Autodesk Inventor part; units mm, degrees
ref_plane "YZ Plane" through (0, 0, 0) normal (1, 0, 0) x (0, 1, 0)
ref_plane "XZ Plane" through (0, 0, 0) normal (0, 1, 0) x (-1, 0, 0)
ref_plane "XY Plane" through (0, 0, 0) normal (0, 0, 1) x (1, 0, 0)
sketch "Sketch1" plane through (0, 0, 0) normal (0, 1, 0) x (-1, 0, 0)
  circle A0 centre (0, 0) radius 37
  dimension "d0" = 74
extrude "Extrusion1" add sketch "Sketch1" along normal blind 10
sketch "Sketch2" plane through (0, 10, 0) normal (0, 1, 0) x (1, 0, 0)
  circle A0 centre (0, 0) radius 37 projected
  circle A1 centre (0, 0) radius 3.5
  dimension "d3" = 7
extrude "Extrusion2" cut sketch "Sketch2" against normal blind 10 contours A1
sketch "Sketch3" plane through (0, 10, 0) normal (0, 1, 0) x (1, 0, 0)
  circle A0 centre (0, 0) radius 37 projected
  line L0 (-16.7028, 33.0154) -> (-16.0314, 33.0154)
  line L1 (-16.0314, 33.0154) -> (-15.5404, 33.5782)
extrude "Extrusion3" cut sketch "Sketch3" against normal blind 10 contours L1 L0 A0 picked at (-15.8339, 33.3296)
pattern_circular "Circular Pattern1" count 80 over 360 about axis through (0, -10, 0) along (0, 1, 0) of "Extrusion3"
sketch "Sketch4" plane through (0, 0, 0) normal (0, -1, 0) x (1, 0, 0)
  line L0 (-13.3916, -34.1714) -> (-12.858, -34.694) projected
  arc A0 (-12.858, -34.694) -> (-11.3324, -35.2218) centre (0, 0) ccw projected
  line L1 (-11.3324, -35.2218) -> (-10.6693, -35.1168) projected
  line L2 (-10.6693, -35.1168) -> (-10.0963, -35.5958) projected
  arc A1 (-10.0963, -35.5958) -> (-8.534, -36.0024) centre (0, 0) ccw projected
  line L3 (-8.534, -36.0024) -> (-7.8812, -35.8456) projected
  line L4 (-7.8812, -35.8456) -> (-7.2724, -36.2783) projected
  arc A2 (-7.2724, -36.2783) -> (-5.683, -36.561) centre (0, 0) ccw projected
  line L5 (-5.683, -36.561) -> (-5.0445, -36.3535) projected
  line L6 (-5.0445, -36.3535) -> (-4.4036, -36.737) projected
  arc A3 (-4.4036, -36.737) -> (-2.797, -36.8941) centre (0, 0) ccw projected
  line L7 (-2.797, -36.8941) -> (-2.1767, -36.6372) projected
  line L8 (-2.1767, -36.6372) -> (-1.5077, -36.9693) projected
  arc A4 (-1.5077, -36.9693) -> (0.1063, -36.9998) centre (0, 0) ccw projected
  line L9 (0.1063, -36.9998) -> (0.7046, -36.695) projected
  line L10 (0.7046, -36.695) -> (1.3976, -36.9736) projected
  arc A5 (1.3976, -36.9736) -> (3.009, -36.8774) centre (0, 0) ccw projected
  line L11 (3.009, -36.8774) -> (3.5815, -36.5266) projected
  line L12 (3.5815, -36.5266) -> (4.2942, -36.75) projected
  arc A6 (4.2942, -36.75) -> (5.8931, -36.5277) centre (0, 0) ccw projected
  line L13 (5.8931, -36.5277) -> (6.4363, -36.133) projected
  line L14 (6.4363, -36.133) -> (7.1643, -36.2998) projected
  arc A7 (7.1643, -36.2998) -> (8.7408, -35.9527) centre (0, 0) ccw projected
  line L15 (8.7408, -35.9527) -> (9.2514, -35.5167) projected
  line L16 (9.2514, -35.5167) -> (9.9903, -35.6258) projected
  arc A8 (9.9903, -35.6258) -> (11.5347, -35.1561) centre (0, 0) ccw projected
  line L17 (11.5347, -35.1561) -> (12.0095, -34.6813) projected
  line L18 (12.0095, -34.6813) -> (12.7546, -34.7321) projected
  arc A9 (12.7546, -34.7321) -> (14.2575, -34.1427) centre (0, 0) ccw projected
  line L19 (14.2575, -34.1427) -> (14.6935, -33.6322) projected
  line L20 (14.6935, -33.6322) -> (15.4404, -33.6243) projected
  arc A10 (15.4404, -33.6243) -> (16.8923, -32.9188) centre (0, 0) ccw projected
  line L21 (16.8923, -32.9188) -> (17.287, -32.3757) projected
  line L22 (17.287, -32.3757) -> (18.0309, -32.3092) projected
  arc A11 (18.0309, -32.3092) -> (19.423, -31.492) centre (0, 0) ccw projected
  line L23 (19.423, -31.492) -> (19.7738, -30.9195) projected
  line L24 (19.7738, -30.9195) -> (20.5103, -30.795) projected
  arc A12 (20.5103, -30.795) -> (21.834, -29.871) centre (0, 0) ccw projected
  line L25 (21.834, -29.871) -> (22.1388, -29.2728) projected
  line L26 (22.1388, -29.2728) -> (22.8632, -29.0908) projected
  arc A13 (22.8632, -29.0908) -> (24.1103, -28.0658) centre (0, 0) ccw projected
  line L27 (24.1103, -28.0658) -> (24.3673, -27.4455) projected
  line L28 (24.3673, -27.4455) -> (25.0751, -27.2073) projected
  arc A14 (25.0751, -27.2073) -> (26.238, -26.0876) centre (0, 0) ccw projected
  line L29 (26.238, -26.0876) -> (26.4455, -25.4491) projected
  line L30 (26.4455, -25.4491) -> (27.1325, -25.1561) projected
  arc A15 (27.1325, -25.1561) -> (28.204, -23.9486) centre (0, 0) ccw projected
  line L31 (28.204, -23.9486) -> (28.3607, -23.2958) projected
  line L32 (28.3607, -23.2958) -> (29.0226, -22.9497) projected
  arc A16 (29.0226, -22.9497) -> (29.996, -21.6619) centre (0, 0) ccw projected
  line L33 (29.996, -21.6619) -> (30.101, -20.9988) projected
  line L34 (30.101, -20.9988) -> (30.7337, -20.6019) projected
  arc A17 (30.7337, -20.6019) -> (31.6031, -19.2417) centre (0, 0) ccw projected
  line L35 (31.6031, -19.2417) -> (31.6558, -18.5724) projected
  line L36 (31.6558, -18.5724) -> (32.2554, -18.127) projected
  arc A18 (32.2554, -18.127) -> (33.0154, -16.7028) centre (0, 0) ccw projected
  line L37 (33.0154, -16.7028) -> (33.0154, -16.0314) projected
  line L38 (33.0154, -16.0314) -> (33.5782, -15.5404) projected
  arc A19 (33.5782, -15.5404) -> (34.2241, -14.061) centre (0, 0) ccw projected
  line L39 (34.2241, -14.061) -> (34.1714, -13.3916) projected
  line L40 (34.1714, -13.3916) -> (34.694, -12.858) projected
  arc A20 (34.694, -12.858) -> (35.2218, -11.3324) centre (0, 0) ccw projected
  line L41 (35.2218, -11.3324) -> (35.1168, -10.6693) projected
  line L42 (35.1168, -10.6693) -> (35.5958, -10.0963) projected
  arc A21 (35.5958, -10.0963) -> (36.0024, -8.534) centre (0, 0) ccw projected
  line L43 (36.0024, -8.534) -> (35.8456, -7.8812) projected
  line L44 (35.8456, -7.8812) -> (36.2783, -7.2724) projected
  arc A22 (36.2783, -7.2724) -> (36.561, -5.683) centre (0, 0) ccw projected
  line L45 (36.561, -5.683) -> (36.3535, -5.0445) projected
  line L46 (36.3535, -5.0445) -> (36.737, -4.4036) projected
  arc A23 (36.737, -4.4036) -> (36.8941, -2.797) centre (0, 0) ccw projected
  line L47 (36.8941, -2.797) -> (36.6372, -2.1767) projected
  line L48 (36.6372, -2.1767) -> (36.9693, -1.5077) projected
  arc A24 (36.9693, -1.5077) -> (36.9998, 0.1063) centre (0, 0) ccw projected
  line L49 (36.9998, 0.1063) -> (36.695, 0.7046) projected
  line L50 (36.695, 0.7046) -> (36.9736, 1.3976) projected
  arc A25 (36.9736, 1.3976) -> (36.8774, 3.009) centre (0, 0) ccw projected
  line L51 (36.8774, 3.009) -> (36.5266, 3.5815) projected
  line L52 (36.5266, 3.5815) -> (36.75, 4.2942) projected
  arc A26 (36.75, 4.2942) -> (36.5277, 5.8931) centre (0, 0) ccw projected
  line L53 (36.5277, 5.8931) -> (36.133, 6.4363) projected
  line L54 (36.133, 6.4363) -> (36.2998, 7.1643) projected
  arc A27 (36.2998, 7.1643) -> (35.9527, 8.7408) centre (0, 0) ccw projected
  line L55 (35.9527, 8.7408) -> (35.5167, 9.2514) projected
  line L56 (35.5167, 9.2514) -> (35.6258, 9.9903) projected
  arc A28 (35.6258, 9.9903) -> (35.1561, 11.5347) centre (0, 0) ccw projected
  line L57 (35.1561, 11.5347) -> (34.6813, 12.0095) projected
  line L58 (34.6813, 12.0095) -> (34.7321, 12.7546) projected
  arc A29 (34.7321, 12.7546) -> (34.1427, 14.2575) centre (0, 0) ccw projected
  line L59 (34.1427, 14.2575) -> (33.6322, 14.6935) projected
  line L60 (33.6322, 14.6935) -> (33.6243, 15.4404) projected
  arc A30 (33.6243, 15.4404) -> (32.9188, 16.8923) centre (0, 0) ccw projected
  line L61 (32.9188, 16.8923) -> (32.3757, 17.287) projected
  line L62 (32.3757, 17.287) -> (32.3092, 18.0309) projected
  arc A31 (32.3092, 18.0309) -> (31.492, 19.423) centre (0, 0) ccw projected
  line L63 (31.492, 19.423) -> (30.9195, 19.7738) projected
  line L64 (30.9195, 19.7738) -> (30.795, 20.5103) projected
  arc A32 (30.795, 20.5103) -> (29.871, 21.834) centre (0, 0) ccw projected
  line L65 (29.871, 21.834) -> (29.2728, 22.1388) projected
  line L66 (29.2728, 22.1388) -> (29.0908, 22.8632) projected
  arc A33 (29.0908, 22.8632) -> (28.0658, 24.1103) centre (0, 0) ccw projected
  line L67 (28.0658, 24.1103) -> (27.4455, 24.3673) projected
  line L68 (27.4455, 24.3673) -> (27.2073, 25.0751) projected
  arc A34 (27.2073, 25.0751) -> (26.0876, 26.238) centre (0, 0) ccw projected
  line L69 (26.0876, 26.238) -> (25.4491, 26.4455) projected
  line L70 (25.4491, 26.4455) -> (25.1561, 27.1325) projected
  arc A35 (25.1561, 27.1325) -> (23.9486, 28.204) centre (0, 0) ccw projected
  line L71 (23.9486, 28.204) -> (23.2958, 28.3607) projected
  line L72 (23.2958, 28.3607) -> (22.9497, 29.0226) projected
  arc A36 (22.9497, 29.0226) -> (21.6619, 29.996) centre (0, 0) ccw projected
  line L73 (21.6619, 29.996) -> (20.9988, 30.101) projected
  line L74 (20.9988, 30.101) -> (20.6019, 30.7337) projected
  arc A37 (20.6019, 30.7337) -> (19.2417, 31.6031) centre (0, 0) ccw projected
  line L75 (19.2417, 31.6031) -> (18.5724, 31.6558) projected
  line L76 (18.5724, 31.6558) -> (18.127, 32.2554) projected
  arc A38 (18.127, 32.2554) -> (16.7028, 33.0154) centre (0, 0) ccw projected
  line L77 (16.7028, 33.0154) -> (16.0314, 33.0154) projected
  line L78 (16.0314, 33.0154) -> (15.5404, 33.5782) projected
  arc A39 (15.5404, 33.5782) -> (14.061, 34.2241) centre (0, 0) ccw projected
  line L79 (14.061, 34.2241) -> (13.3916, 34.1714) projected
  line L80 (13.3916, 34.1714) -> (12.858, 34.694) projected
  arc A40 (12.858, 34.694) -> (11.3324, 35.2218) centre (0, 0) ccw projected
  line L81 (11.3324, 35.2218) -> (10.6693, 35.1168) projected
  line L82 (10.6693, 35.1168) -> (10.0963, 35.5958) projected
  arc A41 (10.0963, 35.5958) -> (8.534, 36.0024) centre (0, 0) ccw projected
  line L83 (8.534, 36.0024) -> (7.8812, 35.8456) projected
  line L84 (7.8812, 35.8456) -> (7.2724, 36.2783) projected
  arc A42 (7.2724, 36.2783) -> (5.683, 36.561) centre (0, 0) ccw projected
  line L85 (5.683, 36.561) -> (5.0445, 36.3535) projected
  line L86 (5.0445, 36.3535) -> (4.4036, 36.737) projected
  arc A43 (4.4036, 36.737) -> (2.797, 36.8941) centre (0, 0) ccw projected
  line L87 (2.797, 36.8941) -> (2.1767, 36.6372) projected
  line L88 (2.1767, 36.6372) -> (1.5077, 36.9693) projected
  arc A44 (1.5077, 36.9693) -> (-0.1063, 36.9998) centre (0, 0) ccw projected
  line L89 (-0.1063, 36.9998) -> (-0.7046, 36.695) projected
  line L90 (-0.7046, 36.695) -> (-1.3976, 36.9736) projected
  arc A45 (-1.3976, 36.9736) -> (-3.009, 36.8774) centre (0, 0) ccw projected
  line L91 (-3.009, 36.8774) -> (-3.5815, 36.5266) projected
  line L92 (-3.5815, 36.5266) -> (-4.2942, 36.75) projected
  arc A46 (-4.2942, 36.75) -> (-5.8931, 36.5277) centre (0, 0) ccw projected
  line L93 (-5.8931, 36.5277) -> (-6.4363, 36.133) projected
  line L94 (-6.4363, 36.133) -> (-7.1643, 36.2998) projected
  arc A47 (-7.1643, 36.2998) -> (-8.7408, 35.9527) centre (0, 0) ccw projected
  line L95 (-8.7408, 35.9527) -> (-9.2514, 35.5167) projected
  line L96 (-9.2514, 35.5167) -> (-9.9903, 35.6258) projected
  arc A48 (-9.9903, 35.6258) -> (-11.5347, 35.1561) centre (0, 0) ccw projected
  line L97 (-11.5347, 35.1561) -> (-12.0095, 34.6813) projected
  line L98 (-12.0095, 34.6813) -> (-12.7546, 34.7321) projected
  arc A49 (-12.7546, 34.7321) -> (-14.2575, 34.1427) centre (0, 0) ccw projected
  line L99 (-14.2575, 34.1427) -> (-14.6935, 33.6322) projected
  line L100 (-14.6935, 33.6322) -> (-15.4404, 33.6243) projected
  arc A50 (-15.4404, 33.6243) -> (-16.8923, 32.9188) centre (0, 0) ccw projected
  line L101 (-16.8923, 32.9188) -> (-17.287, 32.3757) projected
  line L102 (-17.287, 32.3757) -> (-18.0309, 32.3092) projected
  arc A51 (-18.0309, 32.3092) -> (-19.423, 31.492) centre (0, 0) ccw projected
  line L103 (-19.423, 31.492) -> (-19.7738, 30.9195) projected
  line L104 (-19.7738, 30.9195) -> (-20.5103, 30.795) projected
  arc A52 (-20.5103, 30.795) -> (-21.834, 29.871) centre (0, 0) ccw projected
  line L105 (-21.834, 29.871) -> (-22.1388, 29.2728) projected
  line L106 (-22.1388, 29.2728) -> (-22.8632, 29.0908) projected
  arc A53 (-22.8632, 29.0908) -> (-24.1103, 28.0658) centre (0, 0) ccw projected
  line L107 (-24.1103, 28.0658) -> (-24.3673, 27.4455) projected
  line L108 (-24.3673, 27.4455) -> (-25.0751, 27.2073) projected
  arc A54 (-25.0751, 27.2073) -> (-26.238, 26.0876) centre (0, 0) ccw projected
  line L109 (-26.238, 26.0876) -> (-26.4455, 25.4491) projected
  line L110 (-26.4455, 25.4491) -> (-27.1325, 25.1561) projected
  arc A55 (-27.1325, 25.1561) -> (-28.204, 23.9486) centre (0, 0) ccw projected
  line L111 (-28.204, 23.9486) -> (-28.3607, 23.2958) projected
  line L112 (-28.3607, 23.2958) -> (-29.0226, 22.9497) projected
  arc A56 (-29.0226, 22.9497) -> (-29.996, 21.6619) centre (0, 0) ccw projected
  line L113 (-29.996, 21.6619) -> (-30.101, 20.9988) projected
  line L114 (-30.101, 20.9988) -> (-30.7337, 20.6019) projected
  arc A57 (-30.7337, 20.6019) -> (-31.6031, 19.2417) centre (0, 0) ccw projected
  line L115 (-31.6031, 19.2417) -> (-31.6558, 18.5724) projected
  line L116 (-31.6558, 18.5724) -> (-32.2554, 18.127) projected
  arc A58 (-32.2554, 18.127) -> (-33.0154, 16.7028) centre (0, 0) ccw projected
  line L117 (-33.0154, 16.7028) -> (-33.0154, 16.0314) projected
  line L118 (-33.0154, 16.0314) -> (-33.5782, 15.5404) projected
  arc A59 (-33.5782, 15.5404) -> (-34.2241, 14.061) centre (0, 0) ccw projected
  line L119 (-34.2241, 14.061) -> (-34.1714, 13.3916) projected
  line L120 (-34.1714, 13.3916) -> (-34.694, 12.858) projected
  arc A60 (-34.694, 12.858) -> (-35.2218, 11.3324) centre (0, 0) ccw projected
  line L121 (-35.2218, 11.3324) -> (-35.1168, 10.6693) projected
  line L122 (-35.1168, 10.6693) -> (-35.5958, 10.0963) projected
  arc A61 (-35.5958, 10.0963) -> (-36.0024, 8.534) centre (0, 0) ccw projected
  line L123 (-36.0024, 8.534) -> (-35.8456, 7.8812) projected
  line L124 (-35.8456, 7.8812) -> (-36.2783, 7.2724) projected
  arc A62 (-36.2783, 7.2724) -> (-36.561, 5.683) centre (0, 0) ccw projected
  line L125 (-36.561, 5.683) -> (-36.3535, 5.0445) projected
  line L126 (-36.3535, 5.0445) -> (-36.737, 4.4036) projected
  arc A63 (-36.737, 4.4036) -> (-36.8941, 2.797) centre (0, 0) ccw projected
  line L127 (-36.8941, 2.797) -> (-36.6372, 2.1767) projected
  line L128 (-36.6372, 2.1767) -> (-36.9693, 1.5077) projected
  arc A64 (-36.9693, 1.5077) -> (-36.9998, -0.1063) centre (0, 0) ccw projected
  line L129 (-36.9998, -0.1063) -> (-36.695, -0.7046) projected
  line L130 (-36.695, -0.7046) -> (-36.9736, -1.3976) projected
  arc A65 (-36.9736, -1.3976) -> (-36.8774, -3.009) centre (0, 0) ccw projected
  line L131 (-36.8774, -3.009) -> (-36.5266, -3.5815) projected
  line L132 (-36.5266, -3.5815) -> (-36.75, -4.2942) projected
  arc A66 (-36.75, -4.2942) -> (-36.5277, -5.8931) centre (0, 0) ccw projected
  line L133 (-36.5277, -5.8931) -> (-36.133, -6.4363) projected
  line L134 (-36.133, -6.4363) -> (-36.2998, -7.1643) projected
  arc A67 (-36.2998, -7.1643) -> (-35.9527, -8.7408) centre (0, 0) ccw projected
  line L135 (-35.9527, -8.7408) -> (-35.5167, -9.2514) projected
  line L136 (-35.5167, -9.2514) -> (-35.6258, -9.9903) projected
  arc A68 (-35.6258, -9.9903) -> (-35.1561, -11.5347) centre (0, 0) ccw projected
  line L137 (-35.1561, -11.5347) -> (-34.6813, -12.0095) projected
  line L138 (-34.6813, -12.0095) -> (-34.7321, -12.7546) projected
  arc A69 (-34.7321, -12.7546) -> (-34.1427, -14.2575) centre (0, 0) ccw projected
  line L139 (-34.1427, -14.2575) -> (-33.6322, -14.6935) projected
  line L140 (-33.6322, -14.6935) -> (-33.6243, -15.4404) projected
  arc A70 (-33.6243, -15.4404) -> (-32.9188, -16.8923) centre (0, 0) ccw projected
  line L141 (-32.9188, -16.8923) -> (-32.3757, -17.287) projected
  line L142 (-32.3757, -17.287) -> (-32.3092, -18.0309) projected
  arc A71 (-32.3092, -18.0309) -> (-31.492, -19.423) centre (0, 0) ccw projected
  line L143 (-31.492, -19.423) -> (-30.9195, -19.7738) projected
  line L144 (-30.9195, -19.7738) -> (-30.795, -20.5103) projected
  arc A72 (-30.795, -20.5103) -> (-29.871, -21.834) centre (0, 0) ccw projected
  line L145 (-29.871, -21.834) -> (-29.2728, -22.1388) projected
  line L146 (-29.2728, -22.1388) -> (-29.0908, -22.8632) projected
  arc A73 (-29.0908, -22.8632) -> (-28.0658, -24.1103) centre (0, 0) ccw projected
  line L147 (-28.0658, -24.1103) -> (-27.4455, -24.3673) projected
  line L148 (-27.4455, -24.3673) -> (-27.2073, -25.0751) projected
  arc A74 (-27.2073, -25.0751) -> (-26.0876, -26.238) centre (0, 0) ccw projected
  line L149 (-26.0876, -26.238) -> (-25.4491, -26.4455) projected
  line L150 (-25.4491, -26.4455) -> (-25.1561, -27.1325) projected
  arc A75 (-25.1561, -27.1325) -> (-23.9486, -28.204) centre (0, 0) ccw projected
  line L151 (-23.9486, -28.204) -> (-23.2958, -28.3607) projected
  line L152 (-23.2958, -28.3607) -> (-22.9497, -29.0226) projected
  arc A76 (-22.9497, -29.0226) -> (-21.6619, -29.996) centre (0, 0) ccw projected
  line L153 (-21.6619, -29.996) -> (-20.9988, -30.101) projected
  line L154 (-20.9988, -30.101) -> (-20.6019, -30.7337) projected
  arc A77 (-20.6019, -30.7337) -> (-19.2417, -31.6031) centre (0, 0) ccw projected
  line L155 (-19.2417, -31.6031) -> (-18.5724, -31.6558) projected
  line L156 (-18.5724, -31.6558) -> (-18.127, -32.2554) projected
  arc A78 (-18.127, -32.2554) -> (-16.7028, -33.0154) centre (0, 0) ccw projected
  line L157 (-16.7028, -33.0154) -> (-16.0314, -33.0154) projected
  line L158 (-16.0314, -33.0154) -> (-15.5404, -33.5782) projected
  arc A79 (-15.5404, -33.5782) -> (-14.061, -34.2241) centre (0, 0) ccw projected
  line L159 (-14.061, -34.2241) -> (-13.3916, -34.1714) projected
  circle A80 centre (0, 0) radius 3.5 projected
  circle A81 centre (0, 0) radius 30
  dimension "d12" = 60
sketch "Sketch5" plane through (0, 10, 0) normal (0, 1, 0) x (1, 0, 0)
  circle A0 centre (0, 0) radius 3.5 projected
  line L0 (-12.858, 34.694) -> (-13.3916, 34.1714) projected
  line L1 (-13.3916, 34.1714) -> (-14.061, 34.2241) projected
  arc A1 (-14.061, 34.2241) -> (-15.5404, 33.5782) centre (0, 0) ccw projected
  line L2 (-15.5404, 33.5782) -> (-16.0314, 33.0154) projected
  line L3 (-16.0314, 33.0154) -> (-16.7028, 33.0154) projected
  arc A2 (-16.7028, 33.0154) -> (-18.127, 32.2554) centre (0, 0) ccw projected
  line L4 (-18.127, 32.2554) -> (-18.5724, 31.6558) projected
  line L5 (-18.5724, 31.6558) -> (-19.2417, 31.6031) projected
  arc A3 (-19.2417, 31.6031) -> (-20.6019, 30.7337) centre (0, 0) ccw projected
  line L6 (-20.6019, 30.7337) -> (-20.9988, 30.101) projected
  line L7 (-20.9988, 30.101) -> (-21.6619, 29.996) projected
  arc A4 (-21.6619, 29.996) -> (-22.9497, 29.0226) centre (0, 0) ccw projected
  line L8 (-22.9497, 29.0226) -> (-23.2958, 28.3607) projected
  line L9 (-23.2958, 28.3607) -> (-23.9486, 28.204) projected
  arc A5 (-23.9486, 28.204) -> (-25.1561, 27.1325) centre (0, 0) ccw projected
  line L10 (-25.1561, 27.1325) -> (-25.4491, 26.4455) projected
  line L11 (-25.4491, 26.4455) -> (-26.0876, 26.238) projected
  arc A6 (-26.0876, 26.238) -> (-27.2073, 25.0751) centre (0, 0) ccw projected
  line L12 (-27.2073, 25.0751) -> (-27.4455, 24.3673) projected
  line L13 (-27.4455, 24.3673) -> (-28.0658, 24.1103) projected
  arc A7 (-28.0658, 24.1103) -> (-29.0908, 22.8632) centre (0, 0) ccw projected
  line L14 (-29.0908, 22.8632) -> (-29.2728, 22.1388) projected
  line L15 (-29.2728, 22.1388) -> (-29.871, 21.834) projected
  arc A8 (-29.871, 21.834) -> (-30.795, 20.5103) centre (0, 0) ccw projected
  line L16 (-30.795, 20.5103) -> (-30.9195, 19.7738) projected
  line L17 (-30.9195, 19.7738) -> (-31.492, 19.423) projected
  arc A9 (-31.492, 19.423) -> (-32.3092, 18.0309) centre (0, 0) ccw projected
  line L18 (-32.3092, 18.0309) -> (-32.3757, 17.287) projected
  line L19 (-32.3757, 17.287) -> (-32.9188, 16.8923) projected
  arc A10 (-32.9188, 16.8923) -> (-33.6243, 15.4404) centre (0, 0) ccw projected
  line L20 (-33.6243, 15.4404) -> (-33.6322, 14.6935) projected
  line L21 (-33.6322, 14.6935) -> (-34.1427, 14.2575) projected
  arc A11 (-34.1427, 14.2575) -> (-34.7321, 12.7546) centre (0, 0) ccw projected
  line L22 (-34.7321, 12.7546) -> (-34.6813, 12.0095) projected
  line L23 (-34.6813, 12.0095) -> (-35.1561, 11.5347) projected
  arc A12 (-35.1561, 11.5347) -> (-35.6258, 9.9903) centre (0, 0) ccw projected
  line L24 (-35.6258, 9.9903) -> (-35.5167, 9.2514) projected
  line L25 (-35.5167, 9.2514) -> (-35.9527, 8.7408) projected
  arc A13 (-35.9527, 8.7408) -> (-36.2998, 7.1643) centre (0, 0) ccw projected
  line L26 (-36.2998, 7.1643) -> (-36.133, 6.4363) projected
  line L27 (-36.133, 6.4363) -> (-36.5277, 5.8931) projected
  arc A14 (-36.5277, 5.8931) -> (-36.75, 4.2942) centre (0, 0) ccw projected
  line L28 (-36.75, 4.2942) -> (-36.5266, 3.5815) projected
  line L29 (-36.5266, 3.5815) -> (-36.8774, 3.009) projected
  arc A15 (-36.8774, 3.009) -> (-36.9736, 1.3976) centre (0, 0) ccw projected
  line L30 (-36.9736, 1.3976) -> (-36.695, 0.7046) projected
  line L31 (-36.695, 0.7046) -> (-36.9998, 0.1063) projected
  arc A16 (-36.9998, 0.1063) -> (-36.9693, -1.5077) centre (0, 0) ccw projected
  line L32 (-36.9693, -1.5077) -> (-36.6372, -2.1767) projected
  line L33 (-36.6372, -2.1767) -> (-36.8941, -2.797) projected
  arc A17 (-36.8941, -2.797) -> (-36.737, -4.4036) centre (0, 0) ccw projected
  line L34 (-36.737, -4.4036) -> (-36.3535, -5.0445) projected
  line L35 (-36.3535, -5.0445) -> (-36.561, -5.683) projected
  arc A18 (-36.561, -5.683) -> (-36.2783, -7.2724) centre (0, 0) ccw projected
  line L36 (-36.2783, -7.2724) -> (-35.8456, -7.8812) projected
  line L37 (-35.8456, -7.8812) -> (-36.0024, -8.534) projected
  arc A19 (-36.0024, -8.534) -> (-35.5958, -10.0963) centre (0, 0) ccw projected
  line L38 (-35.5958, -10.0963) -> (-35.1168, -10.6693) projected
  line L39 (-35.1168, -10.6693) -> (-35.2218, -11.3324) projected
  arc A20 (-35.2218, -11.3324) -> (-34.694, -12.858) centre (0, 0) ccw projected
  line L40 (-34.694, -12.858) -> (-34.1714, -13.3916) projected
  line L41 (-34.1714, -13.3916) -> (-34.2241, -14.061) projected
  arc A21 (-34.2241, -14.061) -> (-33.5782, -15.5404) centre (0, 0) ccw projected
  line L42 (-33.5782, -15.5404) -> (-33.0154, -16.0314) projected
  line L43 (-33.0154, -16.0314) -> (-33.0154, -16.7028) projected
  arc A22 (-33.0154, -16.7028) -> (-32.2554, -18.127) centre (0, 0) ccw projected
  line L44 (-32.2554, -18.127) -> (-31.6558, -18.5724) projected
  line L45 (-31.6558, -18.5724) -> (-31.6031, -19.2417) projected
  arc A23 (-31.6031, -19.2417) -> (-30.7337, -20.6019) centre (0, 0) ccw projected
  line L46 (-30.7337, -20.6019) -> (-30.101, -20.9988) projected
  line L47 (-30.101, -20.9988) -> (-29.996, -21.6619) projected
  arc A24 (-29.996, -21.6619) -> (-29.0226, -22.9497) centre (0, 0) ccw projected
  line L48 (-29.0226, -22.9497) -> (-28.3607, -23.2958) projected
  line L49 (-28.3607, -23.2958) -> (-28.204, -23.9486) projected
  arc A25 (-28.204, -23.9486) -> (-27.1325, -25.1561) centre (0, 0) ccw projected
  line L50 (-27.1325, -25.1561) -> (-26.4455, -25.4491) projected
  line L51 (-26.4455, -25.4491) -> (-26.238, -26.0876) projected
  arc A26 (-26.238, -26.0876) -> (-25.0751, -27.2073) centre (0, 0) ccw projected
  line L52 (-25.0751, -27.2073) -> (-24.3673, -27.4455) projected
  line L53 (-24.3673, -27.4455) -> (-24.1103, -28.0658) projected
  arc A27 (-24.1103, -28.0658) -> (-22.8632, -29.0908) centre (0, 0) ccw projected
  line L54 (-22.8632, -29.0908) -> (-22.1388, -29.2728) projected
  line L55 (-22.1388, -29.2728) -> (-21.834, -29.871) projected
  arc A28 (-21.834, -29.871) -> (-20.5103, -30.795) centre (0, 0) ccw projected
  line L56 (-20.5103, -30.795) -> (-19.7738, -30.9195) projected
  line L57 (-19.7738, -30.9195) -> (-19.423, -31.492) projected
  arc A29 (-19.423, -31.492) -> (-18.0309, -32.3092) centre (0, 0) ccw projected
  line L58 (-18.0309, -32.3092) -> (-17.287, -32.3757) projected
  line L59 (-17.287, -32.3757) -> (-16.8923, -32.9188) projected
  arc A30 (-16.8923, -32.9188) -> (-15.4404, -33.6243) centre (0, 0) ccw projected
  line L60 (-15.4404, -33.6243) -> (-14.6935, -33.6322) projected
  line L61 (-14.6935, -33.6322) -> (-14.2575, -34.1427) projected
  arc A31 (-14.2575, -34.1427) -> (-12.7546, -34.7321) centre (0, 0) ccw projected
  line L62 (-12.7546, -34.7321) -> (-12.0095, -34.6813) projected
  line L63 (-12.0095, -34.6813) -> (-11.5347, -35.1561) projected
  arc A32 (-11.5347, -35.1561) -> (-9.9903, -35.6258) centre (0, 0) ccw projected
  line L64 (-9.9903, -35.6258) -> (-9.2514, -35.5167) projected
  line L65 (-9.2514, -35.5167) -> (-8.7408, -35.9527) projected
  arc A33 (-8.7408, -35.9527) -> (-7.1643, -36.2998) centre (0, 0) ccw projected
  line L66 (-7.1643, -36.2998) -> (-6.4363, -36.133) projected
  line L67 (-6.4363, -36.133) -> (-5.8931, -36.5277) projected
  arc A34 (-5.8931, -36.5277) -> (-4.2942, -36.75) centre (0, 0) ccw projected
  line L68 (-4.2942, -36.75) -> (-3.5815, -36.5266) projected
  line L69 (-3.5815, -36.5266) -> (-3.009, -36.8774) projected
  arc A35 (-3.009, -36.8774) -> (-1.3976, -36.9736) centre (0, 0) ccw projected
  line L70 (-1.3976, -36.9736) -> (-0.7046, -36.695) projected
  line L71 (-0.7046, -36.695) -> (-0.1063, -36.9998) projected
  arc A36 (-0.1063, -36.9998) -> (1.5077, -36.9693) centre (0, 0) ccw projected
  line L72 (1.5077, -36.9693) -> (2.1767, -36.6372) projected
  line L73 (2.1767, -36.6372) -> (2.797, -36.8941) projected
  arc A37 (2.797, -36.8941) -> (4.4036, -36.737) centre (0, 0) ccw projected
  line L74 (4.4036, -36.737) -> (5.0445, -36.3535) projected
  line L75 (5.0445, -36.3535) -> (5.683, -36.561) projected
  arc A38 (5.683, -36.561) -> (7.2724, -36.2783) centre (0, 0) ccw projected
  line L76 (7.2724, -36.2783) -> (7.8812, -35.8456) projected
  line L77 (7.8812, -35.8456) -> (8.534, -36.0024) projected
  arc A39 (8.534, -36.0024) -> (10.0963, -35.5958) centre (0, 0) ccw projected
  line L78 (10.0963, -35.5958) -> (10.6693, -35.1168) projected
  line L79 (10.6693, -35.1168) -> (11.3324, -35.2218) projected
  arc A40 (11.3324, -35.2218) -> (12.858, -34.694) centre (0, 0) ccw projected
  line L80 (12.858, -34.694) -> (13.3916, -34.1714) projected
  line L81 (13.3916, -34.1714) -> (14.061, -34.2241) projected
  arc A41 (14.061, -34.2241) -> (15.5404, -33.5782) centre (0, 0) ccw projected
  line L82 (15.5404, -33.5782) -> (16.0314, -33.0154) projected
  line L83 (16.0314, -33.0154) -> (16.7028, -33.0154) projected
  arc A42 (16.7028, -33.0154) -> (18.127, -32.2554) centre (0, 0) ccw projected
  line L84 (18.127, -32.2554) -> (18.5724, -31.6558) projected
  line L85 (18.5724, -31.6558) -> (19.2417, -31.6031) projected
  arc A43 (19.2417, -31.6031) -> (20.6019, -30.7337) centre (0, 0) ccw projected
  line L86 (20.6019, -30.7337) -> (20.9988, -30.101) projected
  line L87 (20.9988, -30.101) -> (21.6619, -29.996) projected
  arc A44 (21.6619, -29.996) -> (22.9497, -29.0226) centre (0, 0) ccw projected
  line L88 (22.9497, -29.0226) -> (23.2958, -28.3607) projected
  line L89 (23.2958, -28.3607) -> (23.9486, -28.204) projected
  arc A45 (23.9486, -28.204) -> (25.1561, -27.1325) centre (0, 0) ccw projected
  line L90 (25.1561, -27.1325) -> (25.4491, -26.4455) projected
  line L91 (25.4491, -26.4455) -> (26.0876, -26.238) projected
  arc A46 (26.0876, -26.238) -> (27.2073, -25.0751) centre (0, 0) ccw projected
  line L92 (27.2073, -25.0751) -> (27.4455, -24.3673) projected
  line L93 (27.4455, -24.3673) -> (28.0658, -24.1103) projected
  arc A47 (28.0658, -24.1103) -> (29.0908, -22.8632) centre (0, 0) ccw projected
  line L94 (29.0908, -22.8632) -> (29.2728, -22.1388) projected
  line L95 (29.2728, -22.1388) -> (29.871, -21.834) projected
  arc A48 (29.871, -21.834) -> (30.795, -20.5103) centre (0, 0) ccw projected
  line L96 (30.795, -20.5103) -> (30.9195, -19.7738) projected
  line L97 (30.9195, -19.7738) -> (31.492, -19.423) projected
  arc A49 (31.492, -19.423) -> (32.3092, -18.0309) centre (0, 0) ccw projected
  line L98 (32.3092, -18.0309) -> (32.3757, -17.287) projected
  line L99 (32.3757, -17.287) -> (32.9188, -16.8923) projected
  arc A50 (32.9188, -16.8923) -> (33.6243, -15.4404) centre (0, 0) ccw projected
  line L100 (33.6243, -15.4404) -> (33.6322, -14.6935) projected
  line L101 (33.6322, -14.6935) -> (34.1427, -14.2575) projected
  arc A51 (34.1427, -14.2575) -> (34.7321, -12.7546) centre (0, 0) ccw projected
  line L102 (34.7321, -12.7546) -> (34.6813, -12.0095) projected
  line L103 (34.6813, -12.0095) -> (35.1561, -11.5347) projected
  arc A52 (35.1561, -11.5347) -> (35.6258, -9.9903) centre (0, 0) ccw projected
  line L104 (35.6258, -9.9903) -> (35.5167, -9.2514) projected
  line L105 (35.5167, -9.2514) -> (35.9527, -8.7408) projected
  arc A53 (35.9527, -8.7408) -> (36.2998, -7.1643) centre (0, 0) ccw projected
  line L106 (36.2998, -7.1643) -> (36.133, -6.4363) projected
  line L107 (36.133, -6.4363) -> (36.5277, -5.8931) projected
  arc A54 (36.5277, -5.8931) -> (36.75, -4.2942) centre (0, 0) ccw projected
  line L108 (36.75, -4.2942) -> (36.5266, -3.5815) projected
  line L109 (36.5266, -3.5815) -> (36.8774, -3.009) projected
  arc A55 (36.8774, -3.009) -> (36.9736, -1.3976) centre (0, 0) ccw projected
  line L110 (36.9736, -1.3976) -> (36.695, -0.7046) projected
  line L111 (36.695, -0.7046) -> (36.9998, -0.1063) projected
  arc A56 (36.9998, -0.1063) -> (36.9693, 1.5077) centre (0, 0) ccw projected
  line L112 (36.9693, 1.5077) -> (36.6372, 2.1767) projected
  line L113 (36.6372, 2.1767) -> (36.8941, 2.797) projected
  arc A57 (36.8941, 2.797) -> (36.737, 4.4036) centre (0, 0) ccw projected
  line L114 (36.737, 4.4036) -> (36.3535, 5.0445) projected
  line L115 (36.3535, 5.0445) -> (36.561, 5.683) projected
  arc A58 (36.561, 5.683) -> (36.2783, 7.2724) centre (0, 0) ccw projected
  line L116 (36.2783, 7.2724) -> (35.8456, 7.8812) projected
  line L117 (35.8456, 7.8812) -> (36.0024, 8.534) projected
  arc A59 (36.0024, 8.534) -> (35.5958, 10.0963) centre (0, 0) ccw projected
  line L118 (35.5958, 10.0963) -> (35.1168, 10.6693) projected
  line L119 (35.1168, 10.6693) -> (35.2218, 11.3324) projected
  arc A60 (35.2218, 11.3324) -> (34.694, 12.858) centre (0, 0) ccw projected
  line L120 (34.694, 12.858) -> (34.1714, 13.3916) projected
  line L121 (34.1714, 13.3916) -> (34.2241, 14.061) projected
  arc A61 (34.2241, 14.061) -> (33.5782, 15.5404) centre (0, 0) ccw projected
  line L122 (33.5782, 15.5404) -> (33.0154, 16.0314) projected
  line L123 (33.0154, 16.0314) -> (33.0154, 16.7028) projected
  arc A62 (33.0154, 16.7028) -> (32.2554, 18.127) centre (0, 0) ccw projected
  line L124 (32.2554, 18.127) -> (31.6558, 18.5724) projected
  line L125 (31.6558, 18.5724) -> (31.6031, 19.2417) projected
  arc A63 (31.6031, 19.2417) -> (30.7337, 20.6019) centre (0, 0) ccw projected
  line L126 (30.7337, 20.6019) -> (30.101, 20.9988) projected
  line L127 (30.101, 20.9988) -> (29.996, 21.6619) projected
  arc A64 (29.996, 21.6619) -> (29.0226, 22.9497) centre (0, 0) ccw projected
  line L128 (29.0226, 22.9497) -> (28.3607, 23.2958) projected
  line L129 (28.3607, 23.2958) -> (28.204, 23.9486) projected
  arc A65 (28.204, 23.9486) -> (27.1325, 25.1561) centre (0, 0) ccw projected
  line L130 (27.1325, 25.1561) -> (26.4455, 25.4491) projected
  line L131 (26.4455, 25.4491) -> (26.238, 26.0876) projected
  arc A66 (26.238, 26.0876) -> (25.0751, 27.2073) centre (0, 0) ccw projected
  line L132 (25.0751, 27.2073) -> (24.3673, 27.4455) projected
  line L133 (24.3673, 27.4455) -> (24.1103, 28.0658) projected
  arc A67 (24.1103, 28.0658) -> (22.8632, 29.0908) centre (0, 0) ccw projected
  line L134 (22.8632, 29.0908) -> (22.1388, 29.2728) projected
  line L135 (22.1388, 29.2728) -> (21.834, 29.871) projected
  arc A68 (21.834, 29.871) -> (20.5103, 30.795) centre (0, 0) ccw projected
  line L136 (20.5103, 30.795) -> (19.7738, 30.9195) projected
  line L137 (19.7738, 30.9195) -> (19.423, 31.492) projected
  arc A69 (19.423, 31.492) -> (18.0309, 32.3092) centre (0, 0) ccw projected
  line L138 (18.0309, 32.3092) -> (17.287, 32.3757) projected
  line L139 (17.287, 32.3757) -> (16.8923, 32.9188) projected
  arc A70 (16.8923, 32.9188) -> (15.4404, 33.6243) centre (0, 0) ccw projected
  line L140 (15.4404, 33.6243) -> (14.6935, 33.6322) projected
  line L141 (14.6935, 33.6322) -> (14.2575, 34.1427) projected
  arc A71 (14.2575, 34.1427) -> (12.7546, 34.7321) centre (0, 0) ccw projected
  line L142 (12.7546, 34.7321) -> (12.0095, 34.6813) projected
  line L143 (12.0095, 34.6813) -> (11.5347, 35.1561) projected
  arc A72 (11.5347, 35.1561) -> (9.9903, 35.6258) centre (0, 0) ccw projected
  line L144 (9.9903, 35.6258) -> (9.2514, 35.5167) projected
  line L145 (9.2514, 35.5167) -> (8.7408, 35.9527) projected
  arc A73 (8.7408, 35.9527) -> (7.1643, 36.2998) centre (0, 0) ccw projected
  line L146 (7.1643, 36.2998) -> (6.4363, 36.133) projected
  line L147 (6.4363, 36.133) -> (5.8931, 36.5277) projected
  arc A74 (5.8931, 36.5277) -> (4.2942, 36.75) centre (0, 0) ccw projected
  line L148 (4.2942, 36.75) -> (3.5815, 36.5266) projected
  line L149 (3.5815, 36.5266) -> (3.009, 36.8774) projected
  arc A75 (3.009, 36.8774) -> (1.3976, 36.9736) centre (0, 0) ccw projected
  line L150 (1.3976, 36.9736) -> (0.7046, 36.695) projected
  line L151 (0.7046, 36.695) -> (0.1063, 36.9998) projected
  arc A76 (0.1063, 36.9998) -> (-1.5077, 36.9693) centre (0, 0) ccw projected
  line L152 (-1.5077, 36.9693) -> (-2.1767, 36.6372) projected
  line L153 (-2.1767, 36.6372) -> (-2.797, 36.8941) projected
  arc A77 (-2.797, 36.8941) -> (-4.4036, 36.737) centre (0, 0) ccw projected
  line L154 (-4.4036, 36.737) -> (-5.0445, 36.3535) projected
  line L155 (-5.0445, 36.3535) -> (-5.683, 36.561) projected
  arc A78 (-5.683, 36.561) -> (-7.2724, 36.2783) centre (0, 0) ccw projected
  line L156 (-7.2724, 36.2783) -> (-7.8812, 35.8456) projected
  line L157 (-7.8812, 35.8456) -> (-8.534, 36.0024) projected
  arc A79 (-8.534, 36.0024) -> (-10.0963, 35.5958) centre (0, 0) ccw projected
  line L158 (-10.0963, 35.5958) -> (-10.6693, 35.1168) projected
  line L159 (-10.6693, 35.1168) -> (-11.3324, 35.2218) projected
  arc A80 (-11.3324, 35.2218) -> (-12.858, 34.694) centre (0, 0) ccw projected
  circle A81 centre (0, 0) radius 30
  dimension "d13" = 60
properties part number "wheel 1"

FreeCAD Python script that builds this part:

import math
import FreeCAD as App
import Part
import Sketcher
Q = App.Units.Quantity

doc = App.newDocument("Part")
body = doc.addObject("PartDesign::Body", "Body")

sketch1 = doc.addObject("Sketcher::SketchObject", "Sketch")
body.addObject(sketch1)
sketch1.AttachmentSupport = (doc.XZ_Plane, [""])
sketch1.MapMode = "FlatFace"
sketch1.addGeometry(Part.Circle(App.Vector(0, 0, 0), App.Vector(0, 0, 1), 37), False)
sketch1.addConstraint([
    Sketcher.Constraint("Coincident", 0, 3, -1, 1),
    Sketcher.Constraint("Diameter", 0, Q("74 mm")),
])
pad1 = doc.addObject("PartDesign::Pad", "Pad")
body.addObject(pad1)
pad1.Profile = sketch1
pad1.Length = 10
pad1.Reversed = True

sketch2 = doc.addObject("Sketcher::SketchObject", "Sketch001")
body.addObject(sketch2)
sketch2.AttachmentSupport = (doc.XZ_Plane, [""])
sketch2.MapMode = "FlatFace"
sketch2.AttachmentOffset = App.Placement(App.Vector(0, 0, -10), App.Rotation())
sketch2.addGeometry(Part.Circle(App.Vector(0, 0, 0), App.Vector(0, 0, 1), 3.5), False)
sketch2.addConstraint([
    Sketcher.Constraint("Coincident", 0, 3, -1, 1),
    Sketcher.Constraint("Diameter", 0, Q("7 mm")),
])
pocket1 = doc.addObject("PartDesign::Pocket", "Pocket")
body.addObject(pocket1)
pocket1.Profile = sketch2
pocket1.Length = 10
pocket1.Reversed = True

sketch3 = doc.addObject("Sketcher::SketchObject", "Sketch002")
body.addObject(sketch3)
sketch3.AttachmentSupport = (doc.XZ_Plane, [""])
sketch3.MapMode = "FlatFace"
sketch3.AttachmentOffset = App.Placement(App.Vector(0, 0, -10), App.Rotation())
sketch3.addGeometry([
    Part.LineSegment(App.Vector(-16, -33, 0), App.Vector(-15.5, -33.6, 0)),
    Part.ArcOfCircle(Part.Circle(App.Vector(0, 0, 0), App.Vector(0, 0, 1), 37), math.radians(-116.84), math.radians(-114.84)),
    Part.LineSegment(App.Vector(-16.7, -33, 0), App.Vector(-16, -33, 0)),
], False)
sketch3.addConstraint([
    Sketcher.Constraint("Coincident", 0, 2, 1, 2),
    Sketcher.Constraint("Coincident", 1, 1, 2, 1),
    Sketcher.Constraint("Coincident", 2, 2, 0, 1),
    Sketcher.Constraint("Horizontal", 2),
    Sketcher.Constraint("Coincident", 1, 3, -1, 1),
    Sketcher.Constraint("Radius", 1, Q("37 mm")),
    Sketcher.Constraint("DistanceX", 2, 1, 2, 2, Q("0.6714 mm")),
    Sketcher.Constraint("DistanceX", 2, 2, 0, 2, Q("0.491 mm")),
    Sketcher.Constraint("Distance", 0, Q("0.7469 mm")),
])
pocket2 = doc.addObject("PartDesign::Pocket", "Pocket001")
body.addObject(pocket2)
pocket2.Profile = sketch3
pocket2.Length = 10
pocket2.Reversed = True
doc.recompute()

polarpattern = doc.addObject("PartDesign::PolarPattern", "PolarPattern")
body.addObject(polarpattern)
polarpattern.Originals = [pocket2]
polarpattern.Axis = (doc.Y_Axis, [""])
polarpattern.Angle = 360
polarpattern.Occurrences = 80
body.Tip = polarpattern

doc.recompute()
